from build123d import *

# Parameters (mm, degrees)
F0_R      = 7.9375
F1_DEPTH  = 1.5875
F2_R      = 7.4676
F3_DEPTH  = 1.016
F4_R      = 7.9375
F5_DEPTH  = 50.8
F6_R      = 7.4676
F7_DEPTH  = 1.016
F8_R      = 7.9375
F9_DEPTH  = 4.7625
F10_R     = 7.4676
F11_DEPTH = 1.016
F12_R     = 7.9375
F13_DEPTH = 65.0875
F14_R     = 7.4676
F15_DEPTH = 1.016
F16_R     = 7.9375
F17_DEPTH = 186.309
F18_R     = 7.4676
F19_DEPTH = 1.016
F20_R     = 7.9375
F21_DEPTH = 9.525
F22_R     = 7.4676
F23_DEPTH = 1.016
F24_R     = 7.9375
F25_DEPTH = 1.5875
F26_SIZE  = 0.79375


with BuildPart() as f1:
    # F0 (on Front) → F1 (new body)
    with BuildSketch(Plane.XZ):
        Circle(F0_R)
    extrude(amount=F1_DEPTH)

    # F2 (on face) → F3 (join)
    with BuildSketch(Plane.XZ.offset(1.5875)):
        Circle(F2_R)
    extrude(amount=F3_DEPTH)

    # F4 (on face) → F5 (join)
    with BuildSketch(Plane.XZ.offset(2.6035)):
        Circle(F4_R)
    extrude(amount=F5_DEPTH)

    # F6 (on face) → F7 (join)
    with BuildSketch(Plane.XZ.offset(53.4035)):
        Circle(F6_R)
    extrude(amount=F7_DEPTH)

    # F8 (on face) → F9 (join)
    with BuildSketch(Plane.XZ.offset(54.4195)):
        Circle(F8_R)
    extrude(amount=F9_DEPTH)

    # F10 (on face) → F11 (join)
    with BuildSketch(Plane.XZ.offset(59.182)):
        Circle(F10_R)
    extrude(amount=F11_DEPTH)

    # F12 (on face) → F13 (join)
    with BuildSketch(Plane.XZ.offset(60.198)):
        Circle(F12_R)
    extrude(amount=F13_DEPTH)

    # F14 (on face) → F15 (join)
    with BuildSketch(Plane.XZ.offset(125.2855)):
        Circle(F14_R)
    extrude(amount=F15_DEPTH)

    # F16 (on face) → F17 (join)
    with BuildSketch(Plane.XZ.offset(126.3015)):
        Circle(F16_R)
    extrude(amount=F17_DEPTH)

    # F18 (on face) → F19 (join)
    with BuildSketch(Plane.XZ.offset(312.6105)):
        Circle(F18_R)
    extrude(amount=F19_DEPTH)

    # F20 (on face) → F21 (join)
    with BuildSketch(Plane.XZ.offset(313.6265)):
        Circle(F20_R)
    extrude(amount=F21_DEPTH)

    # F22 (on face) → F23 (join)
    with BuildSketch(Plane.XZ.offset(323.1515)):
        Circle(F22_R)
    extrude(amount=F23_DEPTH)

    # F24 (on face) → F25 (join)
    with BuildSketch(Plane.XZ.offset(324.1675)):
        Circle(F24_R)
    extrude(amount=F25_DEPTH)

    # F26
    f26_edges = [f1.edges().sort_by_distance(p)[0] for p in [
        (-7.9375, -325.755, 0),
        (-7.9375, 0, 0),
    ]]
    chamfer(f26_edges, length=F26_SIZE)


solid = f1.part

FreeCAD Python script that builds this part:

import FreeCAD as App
import Part
import Sketcher

V = App.Vector
Q = App.Units.Quantity


def edges_at(feature, points):
    """Names of the edges that pass closest to the given points."""
    edges = feature.Shape.Edges
    near = lambda p: min(range(len(edges)), key=lambda i: edges[i].distToShape(Part.Vertex(*p))[0])
    return sorted({f"Edge{near(p) + 1}" for p in points})

doc = App.newDocument("Part")
body = doc.addObject("PartDesign::Body", "Body")

sketch1 = body.newObject("Sketcher::SketchObject", "Sketch")
sketch1.AttachmentSupport = (doc.getObject("XZ_Plane"), [""])
sketch1.MapMode = "FlatFace"
sketch1.addGeometry(Part.Circle(V(0, 0, 0), V(0, 0, 1), 7.9375), False)
sketch1.addConstraint([
    Sketcher.Constraint("Coincident", 0, 3, -1, 1),
    Sketcher.Constraint("Diameter", 0, Q("0.625 in")),
])
pad1 = body.newObject("PartDesign::Pad", "Pad")
pad1.Profile = sketch1
pad1.Length = Q("0.0625 in")

sketch2 = body.newObject("Sketcher::SketchObject", "Sketch001")
sketch2.AttachmentSupport = (doc.getObject("XZ_Plane"), [""])
sketch2.MapMode = "FlatFace"
sketch2.AttachmentOffset = App.Placement(V(0, 0, 0.0625 * 25.4), App.Rotation())
sketch2.addGeometry(Part.Circle(V(0, 0, 0), V(0, 0, 1), 7.4676), False)
sketch2.addConstraint([
    Sketcher.Constraint("Coincident", 0, 3, -1, 1),
    Sketcher.Constraint("Diameter", 0, Q("0.588 in")),
])
pad2 = body.newObject("PartDesign::Pad", "Pad001")
pad2.Profile = sketch2
pad2.Length = Q("0.04 in")

sketch3 = body.newObject("Sketcher::SketchObject", "Sketch002")
sketch3.AttachmentSupport = (doc.getObject("XZ_Plane"), [""])
sketch3.MapMode = "FlatFace"
sketch3.AttachmentOffset = App.Placement(V(0, 0, 0.1025 * 25.4), App.Rotation())
sketch3.addGeometry(Part.Circle(V(0, 0, 0), V(0, 0, 1), 7.9375), False)
sketch3.addConstraint([
    Sketcher.Constraint("Coincident", 0, 3, -1, 1),
    Sketcher.Constraint("Diameter", 0, Q("0.625 in")),
])
pad3 = body.newObject("PartDesign::Pad", "Pad002")
pad3.Profile = sketch3
pad3.Length = Q("2 in")

sketch4 = body.newObject("Sketcher::SketchObject", "Sketch003")
sketch4.AttachmentSupport = (doc.getObject("XZ_Plane"), [""])
sketch4.MapMode = "FlatFace"
sketch4.AttachmentOffset = App.Placement(V(0, 0, 2.1025 * 25.4), App.Rotation())
sketch4.addGeometry(Part.Circle(V(0, 0, 0), V(0, 0, 1), 7.4676), False)
sketch4.addConstraint([
    Sketcher.Constraint("Coincident", 0, 3, -1, 1),
    Sketcher.Constraint("Diameter", 0, Q("0.588 in")),
])
pad4 = body.newObject("PartDesign::Pad", "Pad003")
pad4.Profile = sketch4
pad4.Length = Q("0.04 in")

sketch5 = body.newObject("Sketcher::SketchObject", "Sketch004")
sketch5.AttachmentSupport = (doc.getObject("XZ_Plane"), [""])
sketch5.MapMode = "FlatFace"
sketch5.AttachmentOffset = App.Placement(V(0, 0, 2.1425 * 25.4), App.Rotation())
sketch5.addGeometry(Part.Circle(V(0, 0, 0), V(0, 0, 1), 7.9375), False)
sketch5.addConstraint([
    Sketcher.Constraint("Coincident", 0, 3, -1, 1),
    Sketcher.Constraint("Diameter", 0, Q("0.625 in")),
])
pad5 = body.newObject("PartDesign::Pad", "Pad004")
pad5.Profile = sketch5
pad5.Length = Q("0.1875 in")

sketch6 = body.newObject("Sketcher::SketchObject", "Sketch005")
sketch6.AttachmentSupport = (doc.getObject("XZ_Plane"), [""])
sketch6.MapMode = "FlatFace"
sketch6.AttachmentOffset = App.Placement(V(0, 0, 2.33 * 25.4), App.Rotation())
sketch6.addGeometry(Part.Circle(V(0, 0, 0), V(0, 0, 1), 7.4676), False)
sketch6.addConstraint([
    Sketcher.Constraint("Coincident", 0, 3, -1, 1),
    Sketcher.Constraint("Diameter", 0, Q("0.588 in")),
])
pad6 = body.newObject("PartDesign::Pad", "Pad005")
pad6.Profile = sketch6
pad6.Length = Q("0.04 in")

sketch7 = body.newObject("Sketcher::SketchObject", "Sketch006")
sketch7.AttachmentSupport = (doc.getObject("XZ_Plane"), [""])
sketch7.MapMode = "FlatFace"
sketch7.AttachmentOffset = App.Placement(V(0, 0, 2.37 * 25.4), App.Rotation())
sketch7.addGeometry(Part.Circle(V(0, 0, 0), V(0, 0, 1), 7.9375), False)
sketch7.addConstraint([
    Sketcher.Constraint("Coincident", 0, 3, -1, 1),
    Sketcher.Constraint("Diameter", 0, Q("0.625 in")),
])
pad7 = body.newObject("PartDesign::Pad", "Pad006")
pad7.Profile = sketch7
pad7.Length = Q("2.5625 in")

sketch8 = body.newObject("Sketcher::SketchObject", "Sketch007")
sketch8.AttachmentSupport = (doc.getObject("XZ_Plane"), [""])
sketch8.MapMode = "FlatFace"
sketch8.AttachmentOffset = App.Placement(V(0, 0, 4.9325 * 25.4), App.Rotation())
sketch8.addGeometry(Part.Circle(V(0, 0, 0), V(0, 0, 1), 7.4676), False)
sketch8.addConstraint([
    Sketcher.Constraint("Coincident", 0, 3, -1, 1),
    Sketcher.Constraint("Diameter", 0, Q("0.588 in")),
])
pad8 = body.newObject("PartDesign::Pad", "Pad007")
pad8.Profile = sketch8
pad8.Length = Q("0.04 in")

sketch9 = body.newObject("Sketcher::SketchObject", "Sketch008")
sketch9.AttachmentSupport = (doc.getObject("XZ_Plane"), [""])
sketch9.MapMode = "FlatFace"
sketch9.AttachmentOffset = App.Placement(V(0, 0, 4.9725 * 25.4), App.Rotation())
sketch9.addGeometry(Part.Circle(V(0, 0, 0), V(0, 0, 1), 7.9375), False)
sketch9.addConstraint([
    Sketcher.Constraint("Coincident", 0, 3, -1, 1),
    Sketcher.Constraint("Diameter", 0, Q("0.625 in")),
])
pad9 = body.newObject("PartDesign::Pad", "Pad008")
pad9.Profile = sketch9
pad9.Length = Q("7.335 in")

sketch10 = body.newObject("Sketcher::SketchObject", "Sketch009")
sketch10.AttachmentSupport = (doc.getObject("XZ_Plane"), [""])
sketch10.MapMode = "FlatFace"
sketch10.AttachmentOffset = App.Placement(V(0, 0, 12.3075 * 25.4), App.Rotation())
sketch10.addGeometry(Part.Circle(V(0, 0, 0), V(0, 0, 1), 7.4676), False)
sketch10.addConstraint([
    Sketcher.Constraint("Coincident", 0, 3, -1, 1),
    Sketcher.Constraint("Diameter", 0, Q("0.588 in")),
])
pad10 = body.newObject("PartDesign::Pad", "Pad009")
pad10.Profile = sketch10
pad10.Length = Q("0.04 in")

sketch11 = body.newObject("Sketcher::SketchObject", "Sketch010")
sketch11.AttachmentSupport = (doc.getObject("XZ_Plane"), [""])
sketch11.MapMode = "FlatFace"
sketch11.AttachmentOffset = App.Placement(V(0, 0, 12.3475 * 25.4), App.Rotation())
sketch11.addGeometry(Part.Circle(V(0, 0, 0), V(0, 0, 1), 7.9375), False)
sketch11.addConstraint([
    Sketcher.Constraint("Coincident", 0, 3, -1, 1),
    Sketcher.Constraint("Diameter", 0, Q("0.625 in")),
])
pad11 = body.newObject("PartDesign::Pad", "Pad010")
pad11.Profile = sketch11
pad11.Length = Q("0.375 in")

sketch12 = body.newObject("Sketcher::SketchObject", "Sketch011")
sketch12.AttachmentSupport = (doc.getObject("XZ_Plane"), [""])
sketch12.MapMode = "FlatFace"
sketch12.AttachmentOffset = App.Placement(V(0, 0, 12.7225 * 25.4), App.Rotation())
sketch12.addGeometry(Part.Circle(V(0, 0, 0), V(0, 0, 1), 7.4676), False)
sketch12.addConstraint([
    Sketcher.Constraint("Coincident", 0, 3, -1, 1),
    Sketcher.Constraint("Diameter", 0, Q("0.588 in")),
])
pad12 = body.newObject("PartDesign::Pad", "Pad011")
pad12.Profile = sketch12
pad12.Length = Q("0.04 in")

sketch13 = body.newObject("Sketcher::SketchObject", "Sketch012")
sketch13.AttachmentSupport = (doc.getObject("XZ_Plane"), [""])
sketch13.MapMode = "FlatFace"
sketch13.AttachmentOffset = App.Placement(V(0, 0, 12.7625 * 25.4), App.Rotation())
sketch13.addGeometry(Part.Circle(V(0, 0, 0), V(0, 0, 1), 7.9375), False)
sketch13.addConstraint([
    Sketcher.Constraint("Coincident", 0, 3, -1, 1),
    Sketcher.Constraint("Diameter", 0, Q("0.625 in")),
])
pad13 = body.newObject("PartDesign::Pad", "Pad012")
pad13.Profile = sketch13
pad13.Length = Q("0.0625 in")
doc.recompute()

chamfer = body.newObject("PartDesign::Chamfer", "Chamfer")
chamfer.Base = (pad13, edges_at(pad13, [(-7.938, -325.755, 0), (-7.938, 0, 0)]))
chamfer.Size = Q("0.03125 in")

doc.recompute()
